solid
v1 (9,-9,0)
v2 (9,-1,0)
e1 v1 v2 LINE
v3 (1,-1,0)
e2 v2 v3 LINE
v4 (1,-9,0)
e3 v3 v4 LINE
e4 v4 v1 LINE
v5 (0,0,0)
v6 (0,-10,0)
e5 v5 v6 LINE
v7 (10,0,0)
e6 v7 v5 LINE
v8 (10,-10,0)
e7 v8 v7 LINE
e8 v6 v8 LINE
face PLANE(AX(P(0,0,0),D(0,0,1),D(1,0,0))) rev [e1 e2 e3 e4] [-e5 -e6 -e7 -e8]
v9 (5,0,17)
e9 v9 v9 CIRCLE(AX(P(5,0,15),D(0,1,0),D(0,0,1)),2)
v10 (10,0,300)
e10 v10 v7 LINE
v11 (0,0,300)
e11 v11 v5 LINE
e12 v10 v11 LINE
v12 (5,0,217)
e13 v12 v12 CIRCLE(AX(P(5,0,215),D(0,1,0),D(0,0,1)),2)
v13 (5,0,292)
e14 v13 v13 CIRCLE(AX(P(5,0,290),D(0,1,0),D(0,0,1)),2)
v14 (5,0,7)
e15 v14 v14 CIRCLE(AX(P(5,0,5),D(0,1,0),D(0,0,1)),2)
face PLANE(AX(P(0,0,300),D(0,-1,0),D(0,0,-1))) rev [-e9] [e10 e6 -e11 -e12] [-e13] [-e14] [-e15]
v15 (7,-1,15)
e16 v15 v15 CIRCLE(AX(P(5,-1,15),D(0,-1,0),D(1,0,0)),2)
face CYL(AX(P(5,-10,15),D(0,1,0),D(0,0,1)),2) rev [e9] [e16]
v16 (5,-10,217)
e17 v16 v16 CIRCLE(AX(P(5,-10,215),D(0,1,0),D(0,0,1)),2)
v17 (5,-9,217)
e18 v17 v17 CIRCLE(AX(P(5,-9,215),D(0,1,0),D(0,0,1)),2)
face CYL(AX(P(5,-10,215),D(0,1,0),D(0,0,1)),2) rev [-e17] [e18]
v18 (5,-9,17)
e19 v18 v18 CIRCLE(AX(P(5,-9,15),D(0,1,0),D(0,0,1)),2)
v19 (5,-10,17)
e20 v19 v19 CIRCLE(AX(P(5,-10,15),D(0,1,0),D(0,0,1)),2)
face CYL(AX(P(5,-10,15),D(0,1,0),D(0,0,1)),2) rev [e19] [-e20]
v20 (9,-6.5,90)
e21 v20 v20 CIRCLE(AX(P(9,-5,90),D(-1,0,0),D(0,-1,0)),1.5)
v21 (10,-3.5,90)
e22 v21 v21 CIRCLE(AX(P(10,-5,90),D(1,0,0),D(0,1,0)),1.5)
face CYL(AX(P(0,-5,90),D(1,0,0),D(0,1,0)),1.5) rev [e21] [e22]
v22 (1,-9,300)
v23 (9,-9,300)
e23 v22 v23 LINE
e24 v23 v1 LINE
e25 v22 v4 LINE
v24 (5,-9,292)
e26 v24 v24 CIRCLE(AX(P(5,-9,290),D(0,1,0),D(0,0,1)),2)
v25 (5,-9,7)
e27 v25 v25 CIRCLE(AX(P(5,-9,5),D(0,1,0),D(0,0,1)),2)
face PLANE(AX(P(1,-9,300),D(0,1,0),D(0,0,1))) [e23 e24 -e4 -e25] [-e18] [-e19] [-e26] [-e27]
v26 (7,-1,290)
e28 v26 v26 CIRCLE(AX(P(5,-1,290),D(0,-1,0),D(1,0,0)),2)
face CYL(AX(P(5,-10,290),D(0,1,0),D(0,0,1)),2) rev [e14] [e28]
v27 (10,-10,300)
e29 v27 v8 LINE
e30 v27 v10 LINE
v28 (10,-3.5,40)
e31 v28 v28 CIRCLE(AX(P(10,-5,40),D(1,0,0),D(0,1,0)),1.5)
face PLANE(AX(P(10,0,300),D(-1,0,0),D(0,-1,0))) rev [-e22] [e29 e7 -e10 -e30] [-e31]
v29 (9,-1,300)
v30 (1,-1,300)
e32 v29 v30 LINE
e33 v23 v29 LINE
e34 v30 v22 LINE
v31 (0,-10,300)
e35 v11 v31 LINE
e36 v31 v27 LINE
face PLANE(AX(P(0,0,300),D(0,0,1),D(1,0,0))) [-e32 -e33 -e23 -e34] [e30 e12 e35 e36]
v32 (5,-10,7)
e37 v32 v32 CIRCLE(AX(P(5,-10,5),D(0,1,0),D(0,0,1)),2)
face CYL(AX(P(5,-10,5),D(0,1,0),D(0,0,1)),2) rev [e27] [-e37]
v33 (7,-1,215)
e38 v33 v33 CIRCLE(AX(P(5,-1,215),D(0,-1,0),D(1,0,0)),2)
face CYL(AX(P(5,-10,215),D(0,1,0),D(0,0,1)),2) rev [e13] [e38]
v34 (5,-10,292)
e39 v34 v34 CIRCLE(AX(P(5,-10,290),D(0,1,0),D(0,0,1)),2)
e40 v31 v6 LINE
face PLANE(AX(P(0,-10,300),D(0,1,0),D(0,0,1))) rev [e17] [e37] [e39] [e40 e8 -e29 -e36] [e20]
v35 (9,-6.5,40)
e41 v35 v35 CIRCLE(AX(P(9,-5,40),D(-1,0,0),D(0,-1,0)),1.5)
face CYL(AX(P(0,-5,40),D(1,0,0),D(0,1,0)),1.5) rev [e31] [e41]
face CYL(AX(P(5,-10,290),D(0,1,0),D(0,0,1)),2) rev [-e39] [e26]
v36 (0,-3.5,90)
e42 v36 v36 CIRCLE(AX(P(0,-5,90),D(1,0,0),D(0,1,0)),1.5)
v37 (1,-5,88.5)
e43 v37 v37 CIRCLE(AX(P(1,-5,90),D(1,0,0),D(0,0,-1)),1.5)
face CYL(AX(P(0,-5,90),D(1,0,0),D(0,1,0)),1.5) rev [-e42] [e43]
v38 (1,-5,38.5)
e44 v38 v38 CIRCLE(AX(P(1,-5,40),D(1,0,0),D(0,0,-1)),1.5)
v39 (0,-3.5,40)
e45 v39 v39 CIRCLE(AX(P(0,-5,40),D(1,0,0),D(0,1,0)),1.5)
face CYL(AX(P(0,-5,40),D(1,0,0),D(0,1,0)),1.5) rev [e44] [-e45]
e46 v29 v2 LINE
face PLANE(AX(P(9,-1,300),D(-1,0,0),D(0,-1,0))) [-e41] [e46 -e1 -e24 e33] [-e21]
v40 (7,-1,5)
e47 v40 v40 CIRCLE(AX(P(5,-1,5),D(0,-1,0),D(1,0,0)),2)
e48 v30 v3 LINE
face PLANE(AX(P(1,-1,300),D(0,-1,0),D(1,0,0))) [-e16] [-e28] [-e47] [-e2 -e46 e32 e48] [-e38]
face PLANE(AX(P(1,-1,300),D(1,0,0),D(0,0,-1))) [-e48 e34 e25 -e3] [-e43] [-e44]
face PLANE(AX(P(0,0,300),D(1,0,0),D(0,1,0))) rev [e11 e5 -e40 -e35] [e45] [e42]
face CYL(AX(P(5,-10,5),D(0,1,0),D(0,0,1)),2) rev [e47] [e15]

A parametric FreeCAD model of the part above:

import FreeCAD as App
import Part
import Sketcher
from FreeCAD import Vector

doc = App.newDocument("Part")
body = doc.addObject("PartDesign::Body", "Body")

sketch1 = body.newObject("Sketcher::SketchObject", "Sketch")
sketch1.AttachmentSupport = (doc.getObject("XY_Plane"), [""])
sketch1.MapMode = "FlatFace"
sketch1.addGeometry([
    Part.LineSegment(Vector(0, 0, 0), Vector(0, -10, 0)),
    Part.LineSegment(Vector(0, -10, 0), Vector(10, -10, 0)),
    Part.LineSegment(Vector(10, -10, 0), Vector(10, 0, 0)),
    Part.LineSegment(Vector(10, 0, 0), Vector(0, 0, 0)),
    Part.LineSegment(Vector(9, -9, 0), Vector(1, -9, 0)),
    Part.LineSegment(Vector(1, -9, 0), Vector(1, -1, 0)),
    Part.LineSegment(Vector(1, -1, 0), Vector(9, -1, 0)),
    Part.LineSegment(Vector(9, -1, 0), Vector(9, -9, 0)),
], False)
sketch1.addConstraint([
    Sketcher.Constraint("Coincident", 0, 2, 1, 1),
    Sketcher.Constraint("Coincident", 1, 2, 2, 1),
    Sketcher.Constraint("Coincident", 2, 2, 3, 1),
    Sketcher.Constraint("Coincident", 3, 2, 0, 1),
    Sketcher.Constraint("Coincident", 4, 2, 5, 1),
    Sketcher.Constraint("Coincident", 5, 2, 6, 1),
    Sketcher.Constraint("Coincident", 6, 2, 7, 1),
    Sketcher.Constraint("Coincident", 7, 2, 4, 1),
    Sketcher.Constraint("Vertical", 0),
    Sketcher.Constraint("Horizontal", 1),
    Sketcher.Constraint("Vertical", 2),
    Sketcher.Constraint("Horizontal", 3),
    Sketcher.Constraint("Horizontal", 4),
    Sketcher.Constraint("Vertical", 5),
    Sketcher.Constraint("Horizontal", 6),
    Sketcher.Constraint("Vertical", 7),
    Sketcher.Constraint("Coincident", 3, 2, -1, 1),
    Sketcher.Constraint("Equal", 3, 0),
    Sketcher.Constraint("Equal", 6, 5),
    Sketcher.Constraint("DistanceX", 1, 1, 1, 2, 10.0),
    Sketcher.Constraint("DistanceX", 4, 2, 4, 1, 8.0),
    Sketcher.Constraint("DistanceX", -1, 1, 4, 2, 1.0),
    Sketcher.Constraint("DistanceY", 4, 2, -1, 1, 9.0),
])
pad1 = body.newObject("PartDesign::Pad", "Pad")
pad1.Profile = sketch1
pad1.Length = 300

sketch2 = body.newObject("Sketcher::SketchObject", "Sketch001")
sketch2.AttachmentSupport = (doc.getObject("XZ_Plane"), [""])
sketch2.MapMode = "FlatFace"
sketch2.addGeometry([
    Part.Circle(Vector(5, 5, 0), Vector(0, 0, 1), 2),
    Part.Circle(Vector(5, 15, 0), Vector(0, 0, 1), 2),
    Part.Circle(Vector(5, 290, 0), Vector(0, 0, 1), 2),
    Part.Circle(Vector(5, 215, 0), Vector(0, 0, 1), 2),
], False)
sketch2.addConstraint([
    Sketcher.Constraint("Equal", 0, 1),
    Sketcher.Constraint("Equal", 1, 2),
    Sketcher.Constraint("Equal", 2, 3),
    Sketcher.Constraint("Vertical", 0, 3, 1, 3),
    Sketcher.Constraint("Vertical", 1, 3, 2, 3),
    Sketcher.Constraint("Vertical", 2, 3, 3, 3),
    Sketcher.Constraint("Diameter", 0, 4.0),
    Sketcher.Constraint("DistanceX", -1, 1, 0, 3, 5.0),
    Sketcher.Constraint("DistanceY", -1, 1, 0, 3, 5.0),
    Sketcher.Constraint("DistanceY", -1, 1, 1, 3, 15.0),
    Sketcher.Constraint("DistanceY", -1, 1, 2, 3, 290.0),
    Sketcher.Constraint("DistanceY", -1, 1, 3, 3, 215.0),
])
pocket1 = body.newObject("PartDesign::Pocket", "Pocket")
pocket1.Profile = sketch2
pocket1.Type = "ThroughAll"
pocket1.Reversed = True

sketch3 = body.newObject("Sketcher::SketchObject", "Sketch002")
sketch3.AttachmentSupport = (doc.getObject("YZ_Plane"), [""])
sketch3.MapMode = "FlatFace"
sketch3.AttachmentOffset = App.Placement(Vector(0, 0, 10), App.Rotation())
sketch3.addGeometry([
    Part.Circle(Vector(-5, 40, 0), Vector(0, 0, 1), 1.5),
    Part.Circle(Vector(-5, 90, 0), Vector(0, 0, 1), 1.5),
], False)
sketch3.addConstraint([
    Sketcher.Constraint("Equal", 0, 1),
    Sketcher.Constraint("Vertical", 0, 3, 1, 3),
    Sketcher.Constraint("Diameter", 0, 3.0),
    Sketcher.Constraint("DistanceX", 0, 3, -1, 1, 5.0),
    Sketcher.Constraint("DistanceY", -1, 1, 0, 3, 40.0),
    Sketcher.Constraint("DistanceY", -1, 1, 1, 3, 90.0),
])
pocket2 = body.newObject("PartDesign::Pocket", "Pocket001")
pocket2.Profile = sketch3
pocket2.Type = "ThroughAll"

doc.recompute()
